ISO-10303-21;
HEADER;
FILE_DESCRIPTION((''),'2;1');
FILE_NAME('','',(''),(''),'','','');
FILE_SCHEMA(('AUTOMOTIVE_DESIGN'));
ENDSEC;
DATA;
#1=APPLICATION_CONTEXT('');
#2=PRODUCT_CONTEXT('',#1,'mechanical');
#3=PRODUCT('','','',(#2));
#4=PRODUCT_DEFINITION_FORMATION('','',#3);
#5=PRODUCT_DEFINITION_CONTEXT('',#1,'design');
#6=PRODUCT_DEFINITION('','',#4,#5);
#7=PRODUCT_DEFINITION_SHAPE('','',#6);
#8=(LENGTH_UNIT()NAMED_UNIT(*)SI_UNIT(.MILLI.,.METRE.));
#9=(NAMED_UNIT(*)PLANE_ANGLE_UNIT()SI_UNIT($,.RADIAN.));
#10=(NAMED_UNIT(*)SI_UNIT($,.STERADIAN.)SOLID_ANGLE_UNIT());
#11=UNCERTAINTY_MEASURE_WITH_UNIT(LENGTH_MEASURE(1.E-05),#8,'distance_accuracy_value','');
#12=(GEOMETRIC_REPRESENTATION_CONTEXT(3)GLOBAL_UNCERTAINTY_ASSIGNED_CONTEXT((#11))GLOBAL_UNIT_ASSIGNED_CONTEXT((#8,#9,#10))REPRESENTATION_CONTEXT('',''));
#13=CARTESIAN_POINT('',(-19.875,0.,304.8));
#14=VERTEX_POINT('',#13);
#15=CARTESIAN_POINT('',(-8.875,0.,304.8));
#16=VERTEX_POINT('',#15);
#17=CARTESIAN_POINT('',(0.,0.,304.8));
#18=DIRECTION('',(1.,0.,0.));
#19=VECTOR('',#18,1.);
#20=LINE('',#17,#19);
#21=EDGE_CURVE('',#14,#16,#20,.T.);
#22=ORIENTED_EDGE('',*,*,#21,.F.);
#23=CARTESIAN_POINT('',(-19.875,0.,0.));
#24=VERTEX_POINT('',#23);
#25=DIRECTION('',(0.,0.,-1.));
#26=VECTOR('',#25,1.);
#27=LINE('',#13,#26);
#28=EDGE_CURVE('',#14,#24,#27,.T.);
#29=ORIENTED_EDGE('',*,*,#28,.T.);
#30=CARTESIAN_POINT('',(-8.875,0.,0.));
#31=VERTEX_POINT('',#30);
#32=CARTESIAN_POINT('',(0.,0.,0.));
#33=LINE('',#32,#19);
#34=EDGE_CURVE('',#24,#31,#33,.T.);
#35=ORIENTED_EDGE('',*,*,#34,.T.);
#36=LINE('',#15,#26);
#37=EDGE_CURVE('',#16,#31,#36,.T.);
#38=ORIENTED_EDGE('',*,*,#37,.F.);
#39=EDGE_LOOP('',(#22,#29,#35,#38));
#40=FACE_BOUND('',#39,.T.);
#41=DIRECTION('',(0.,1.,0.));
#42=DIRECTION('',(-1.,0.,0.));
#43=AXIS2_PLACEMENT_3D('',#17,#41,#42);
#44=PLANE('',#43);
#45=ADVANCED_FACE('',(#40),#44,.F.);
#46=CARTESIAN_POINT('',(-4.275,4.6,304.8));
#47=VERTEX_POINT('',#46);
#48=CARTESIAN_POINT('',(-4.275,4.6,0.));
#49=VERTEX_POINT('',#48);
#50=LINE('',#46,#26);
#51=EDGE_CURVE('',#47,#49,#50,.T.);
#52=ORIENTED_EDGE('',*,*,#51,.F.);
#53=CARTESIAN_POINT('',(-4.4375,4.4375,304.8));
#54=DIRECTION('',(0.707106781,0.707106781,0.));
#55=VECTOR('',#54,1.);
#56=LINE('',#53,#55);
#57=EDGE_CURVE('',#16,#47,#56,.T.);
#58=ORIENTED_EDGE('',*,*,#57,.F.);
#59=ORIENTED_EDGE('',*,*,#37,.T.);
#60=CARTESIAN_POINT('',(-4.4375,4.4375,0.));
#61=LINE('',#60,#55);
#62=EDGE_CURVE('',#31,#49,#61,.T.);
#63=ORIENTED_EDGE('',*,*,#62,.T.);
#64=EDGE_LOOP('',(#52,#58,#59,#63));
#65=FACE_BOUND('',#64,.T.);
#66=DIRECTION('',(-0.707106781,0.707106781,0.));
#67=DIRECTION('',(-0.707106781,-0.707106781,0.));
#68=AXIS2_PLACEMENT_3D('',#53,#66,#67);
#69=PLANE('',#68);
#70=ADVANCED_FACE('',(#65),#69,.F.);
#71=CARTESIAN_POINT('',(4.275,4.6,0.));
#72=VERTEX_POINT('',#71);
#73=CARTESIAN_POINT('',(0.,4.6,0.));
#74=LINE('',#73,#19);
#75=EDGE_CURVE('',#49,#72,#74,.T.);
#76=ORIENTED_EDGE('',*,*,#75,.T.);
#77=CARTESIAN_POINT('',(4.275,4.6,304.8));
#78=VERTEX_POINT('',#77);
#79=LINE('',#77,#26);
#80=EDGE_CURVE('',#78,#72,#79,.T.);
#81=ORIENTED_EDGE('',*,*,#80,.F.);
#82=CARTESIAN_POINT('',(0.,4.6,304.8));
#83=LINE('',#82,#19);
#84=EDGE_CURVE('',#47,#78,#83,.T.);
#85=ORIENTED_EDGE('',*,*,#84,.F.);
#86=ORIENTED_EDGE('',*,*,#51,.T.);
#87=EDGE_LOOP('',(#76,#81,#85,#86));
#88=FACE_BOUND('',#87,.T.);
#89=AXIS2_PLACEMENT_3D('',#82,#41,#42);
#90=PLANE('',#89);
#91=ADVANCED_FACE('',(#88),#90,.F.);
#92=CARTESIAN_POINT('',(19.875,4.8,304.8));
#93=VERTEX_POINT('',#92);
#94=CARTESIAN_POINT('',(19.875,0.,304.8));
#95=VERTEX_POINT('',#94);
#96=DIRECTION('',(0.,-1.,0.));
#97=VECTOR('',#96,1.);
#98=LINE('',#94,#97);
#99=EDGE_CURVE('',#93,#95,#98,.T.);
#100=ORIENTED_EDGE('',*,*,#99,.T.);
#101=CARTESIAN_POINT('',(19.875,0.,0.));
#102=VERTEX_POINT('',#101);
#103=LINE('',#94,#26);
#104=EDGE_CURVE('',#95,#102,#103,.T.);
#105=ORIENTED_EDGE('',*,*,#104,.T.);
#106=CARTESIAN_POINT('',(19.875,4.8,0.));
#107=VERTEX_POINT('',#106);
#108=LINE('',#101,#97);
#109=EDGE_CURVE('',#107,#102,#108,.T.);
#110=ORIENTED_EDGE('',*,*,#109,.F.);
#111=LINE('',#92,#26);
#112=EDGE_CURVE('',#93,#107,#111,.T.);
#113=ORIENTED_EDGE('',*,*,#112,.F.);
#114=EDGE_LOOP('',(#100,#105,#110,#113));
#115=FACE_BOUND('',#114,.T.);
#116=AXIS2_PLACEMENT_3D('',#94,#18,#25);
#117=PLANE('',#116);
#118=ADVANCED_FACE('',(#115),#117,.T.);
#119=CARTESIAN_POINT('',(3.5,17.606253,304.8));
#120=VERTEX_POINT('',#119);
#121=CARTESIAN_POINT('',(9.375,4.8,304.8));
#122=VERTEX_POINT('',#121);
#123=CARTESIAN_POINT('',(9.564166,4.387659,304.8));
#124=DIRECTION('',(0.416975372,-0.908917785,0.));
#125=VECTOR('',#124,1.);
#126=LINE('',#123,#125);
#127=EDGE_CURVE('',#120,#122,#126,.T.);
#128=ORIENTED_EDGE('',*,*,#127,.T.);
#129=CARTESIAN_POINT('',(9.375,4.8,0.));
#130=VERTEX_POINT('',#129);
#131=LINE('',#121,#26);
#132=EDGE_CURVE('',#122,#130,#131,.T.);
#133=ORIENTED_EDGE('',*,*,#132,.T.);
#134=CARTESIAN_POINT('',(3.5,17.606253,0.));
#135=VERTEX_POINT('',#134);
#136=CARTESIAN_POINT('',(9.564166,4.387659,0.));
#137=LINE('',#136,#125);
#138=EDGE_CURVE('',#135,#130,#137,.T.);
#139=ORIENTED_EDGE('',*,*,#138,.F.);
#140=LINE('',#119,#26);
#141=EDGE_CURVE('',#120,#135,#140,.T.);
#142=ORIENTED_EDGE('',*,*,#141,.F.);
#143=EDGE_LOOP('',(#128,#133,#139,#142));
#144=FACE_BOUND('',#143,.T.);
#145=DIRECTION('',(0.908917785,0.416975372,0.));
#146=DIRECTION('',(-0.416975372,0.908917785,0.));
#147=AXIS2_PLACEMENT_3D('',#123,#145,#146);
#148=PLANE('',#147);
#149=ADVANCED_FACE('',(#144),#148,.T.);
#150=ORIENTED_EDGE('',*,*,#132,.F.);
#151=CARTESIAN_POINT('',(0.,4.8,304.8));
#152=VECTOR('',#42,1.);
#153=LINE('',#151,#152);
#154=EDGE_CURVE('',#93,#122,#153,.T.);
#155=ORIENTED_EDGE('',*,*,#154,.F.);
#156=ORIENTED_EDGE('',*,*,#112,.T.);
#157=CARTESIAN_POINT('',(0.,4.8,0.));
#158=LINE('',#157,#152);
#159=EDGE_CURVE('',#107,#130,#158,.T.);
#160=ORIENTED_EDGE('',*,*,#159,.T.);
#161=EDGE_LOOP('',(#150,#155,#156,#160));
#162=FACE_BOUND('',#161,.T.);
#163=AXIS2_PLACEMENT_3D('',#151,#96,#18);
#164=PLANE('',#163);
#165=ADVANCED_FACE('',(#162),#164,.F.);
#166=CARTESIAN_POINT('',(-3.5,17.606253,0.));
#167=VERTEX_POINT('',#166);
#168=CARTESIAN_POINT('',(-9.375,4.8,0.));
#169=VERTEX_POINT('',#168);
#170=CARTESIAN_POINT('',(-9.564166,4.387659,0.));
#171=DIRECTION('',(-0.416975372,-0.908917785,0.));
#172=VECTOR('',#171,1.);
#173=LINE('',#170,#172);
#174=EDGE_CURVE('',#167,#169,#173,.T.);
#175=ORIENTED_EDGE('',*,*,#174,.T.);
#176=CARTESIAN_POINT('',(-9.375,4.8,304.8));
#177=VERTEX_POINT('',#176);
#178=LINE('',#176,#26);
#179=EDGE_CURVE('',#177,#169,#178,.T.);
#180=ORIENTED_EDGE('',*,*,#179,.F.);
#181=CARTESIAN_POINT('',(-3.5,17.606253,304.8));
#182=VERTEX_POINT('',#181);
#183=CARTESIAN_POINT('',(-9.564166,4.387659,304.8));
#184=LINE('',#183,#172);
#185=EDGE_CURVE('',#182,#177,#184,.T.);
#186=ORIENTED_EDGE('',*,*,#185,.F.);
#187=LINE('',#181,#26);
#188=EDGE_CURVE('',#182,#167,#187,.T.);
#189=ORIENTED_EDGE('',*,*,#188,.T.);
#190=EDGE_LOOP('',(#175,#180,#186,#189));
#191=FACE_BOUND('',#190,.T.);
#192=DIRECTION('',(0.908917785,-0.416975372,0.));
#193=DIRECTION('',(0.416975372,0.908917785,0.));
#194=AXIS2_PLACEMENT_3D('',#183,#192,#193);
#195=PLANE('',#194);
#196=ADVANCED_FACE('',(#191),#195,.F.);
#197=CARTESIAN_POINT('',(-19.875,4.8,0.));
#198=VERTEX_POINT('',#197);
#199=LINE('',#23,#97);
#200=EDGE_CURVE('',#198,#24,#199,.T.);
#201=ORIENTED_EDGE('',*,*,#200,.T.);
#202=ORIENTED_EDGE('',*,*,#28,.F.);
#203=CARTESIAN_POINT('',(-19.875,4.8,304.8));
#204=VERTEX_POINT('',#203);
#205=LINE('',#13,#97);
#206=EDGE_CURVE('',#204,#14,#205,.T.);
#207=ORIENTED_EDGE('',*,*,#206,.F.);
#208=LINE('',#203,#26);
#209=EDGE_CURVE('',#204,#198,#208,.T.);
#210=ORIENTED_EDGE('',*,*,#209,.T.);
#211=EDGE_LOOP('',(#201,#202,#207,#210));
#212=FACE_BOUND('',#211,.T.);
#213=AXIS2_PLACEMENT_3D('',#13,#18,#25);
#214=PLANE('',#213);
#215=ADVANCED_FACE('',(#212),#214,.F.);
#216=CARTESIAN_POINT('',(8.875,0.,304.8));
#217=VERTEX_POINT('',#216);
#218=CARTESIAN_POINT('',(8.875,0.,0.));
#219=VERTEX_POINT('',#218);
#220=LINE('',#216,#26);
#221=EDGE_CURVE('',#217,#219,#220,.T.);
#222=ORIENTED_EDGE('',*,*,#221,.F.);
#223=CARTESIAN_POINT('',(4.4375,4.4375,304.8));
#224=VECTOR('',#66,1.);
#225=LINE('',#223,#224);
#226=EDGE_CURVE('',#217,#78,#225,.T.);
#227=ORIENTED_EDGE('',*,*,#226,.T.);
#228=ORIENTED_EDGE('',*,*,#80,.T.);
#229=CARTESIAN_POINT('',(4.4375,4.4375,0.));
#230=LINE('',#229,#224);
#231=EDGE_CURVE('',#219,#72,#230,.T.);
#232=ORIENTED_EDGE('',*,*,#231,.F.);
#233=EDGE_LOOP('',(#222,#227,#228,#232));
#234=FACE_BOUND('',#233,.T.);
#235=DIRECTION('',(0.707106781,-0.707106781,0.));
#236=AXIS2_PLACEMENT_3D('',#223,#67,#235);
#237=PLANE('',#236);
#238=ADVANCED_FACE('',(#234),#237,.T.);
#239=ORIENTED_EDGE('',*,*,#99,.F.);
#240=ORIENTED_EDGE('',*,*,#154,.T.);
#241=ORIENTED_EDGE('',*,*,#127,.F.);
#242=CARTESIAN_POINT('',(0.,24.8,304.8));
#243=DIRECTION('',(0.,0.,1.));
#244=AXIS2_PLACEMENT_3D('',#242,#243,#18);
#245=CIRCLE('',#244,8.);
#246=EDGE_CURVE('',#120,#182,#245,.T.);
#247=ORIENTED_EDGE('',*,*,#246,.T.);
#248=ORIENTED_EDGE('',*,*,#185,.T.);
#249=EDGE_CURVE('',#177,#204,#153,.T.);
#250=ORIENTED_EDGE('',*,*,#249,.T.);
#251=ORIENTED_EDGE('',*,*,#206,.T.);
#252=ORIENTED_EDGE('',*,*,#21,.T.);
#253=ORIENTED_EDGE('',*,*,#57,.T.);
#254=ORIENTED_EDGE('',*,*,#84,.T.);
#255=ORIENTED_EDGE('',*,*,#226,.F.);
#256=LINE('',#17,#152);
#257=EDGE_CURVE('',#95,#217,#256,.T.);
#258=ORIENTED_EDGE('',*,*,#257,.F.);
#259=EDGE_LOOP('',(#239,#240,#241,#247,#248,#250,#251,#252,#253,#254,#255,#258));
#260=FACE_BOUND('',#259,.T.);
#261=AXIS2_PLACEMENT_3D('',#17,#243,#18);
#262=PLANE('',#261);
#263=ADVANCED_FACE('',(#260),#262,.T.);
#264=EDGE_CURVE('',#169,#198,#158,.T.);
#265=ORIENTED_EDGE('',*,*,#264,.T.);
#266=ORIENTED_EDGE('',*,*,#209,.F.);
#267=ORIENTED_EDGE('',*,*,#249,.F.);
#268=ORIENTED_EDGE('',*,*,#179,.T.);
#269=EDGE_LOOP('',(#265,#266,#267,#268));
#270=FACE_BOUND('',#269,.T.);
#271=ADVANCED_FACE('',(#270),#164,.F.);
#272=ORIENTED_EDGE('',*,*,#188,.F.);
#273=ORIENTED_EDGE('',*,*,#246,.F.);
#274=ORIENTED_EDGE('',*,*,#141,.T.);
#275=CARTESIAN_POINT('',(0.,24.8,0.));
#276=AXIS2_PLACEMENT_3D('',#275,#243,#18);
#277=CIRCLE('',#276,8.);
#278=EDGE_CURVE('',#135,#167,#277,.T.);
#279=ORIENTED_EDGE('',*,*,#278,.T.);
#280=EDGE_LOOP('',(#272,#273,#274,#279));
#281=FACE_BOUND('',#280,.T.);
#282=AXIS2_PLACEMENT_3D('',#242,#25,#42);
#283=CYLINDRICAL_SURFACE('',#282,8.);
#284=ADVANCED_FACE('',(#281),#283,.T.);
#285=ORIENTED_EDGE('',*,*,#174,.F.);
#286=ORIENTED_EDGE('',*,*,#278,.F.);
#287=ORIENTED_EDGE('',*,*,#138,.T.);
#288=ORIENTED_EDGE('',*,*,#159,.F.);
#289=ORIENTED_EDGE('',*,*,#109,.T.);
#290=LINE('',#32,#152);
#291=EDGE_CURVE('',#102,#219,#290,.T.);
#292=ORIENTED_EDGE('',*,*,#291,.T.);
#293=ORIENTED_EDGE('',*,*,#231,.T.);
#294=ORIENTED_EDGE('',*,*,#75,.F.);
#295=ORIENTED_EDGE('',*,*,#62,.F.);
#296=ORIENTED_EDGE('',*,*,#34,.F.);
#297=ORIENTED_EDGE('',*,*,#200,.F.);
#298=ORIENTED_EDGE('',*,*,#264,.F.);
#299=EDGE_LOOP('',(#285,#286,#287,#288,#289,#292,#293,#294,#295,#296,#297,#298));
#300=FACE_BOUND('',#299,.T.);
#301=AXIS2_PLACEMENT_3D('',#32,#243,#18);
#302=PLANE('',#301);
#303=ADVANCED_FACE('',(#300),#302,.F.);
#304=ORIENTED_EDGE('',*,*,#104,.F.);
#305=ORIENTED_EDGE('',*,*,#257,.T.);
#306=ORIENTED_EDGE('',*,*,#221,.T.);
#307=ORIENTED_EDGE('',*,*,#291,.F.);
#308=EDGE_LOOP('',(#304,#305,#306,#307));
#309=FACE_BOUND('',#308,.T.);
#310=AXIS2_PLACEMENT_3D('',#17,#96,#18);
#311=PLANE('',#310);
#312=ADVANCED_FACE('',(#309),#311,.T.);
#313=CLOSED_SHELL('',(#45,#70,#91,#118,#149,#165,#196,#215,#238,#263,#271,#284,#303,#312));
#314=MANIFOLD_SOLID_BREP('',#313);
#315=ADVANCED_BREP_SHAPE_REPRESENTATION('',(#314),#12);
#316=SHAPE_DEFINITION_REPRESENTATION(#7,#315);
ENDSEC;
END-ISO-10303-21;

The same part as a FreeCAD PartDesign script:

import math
import FreeCAD as App
import Part
import Sketcher
from FreeCAD import Vector

doc = App.newDocument("Part")
body = doc.addObject("PartDesign::Body", "Body")

# Sketch on XY plane
sketch1 = doc.addObject("Sketcher::SketchObject", "Sketch")
body.addObject(sketch1)
sketch1.AttachmentSupport = (doc.XY_Plane, [""])
sketch1.MapMode = "FlatFace"
sketch1.addGeometry([
    Part.LineSegment(Vector(9.4, 4.8, 0), Vector(3.5, 17.6, 0)),  # 0
    Part.ArcOfCircle(Part.Circle(Vector(0, 24.8, 0), Vector(0, 0, 1), 8), math.radians(-64), math.radians(244)),  # 1
    Part.LineSegment(Vector(-3.5, 17.6, 0), Vector(-9.4, 4.8, 0)),  # 2
    Part.LineSegment(Vector(-9.4, 4.8, 0), Vector(-19.9, 4.8, 0)),  # 3
    Part.LineSegment(Vector(-19.9, 4.8, 0), Vector(-19.9, 0, 0)),  # 4
    Part.LineSegment(Vector(-19.9, 0, 0), Vector(-8.9, 0, 0)),  # 5
    Part.LineSegment(Vector(-8.9, 0, 0), Vector(-4.3, 4.6, 0)),  # 6
    Part.LineSegment(Vector(-4.3, 4.6, 0), Vector(4.3, 4.6, 0)),  # 7
    Part.LineSegment(Vector(4.3, 4.6, 0), Vector(8.9, 0, 0)),  # 8
    Part.LineSegment(Vector(8.9, 0, 0), Vector(19.9, 0, 0)),  # 9
    Part.LineSegment(Vector(19.9, 0, 0), Vector(19.9, 4.8, 0)),  # 10
    Part.LineSegment(Vector(19.9, 4.8, 0), Vector(9.4, 4.8, 0)),  # 11
], False)
sketch1.addConstraint([
    Sketcher.Constraint("Coincident", 0, 2, 1, 1),
    Sketcher.Constraint("Coincident", 1, 2, 2, 1),
    Sketcher.Constraint("Coincident", 2, 2, 3, 1),
    Sketcher.Constraint("Coincident", 3, 2, 4, 1),
    Sketcher.Constraint("Coincident", 4, 2, 5, 1),
    Sketcher.Constraint("Coincident", 5, 2, 6, 1),
    Sketcher.Constraint("Coincident", 6, 2, 7, 1),
    Sketcher.Constraint("Coincident", 7, 2, 8, 1),
    Sketcher.Constraint("Coincident", 8, 2, 9, 1),
    Sketcher.Constraint("Coincident", 9, 2, 10, 1),
    Sketcher.Constraint("Coincident", 10, 2, 11, 1),
    Sketcher.Constraint("Coincident", 11, 2, 0, 1),
    Sketcher.Constraint("Horizontal", 3),
    Sketcher.Constraint("Vertical", 4),
    Sketcher.Constraint("Horizontal", 5),
    Sketcher.Constraint("Horizontal", 7),
    Sketcher.Constraint("Horizontal", 9),
    Sketcher.Constraint("Vertical", 10),
    Sketcher.Constraint("Horizontal", 11),
    Sketcher.Constraint("Symmetric", 5, 2, 8, 2, -1, 1),
    Sketcher.Constraint("Symmetric", 0, 2, 1, 2, -2),
    Sketcher.Constraint("Symmetric", 4, 2, 9, 2, -2),
    Sketcher.Constraint("Symmetric", 2, 2, 11, 2, -2),
    Sketcher.Constraint("Perpendicular", 6, 8),
    Sketcher.Constraint("Equal", 6, 8),
    Sketcher.Constraint("Radius", 1, 8.0),
    Sketcher.Constraint("DistanceX", 5, 1, 5, 2, 11.0),
    Sketcher.Constraint("DistanceX", 3, 2, 3, 1, 10.5),
    Sketcher.Constraint("DistanceY", 4, 2, 4, 1, 4.8),
    Sketcher.Constraint("DistanceX", 1, 2, 0, 2, 7.0),
    Sketcher.Constraint("DistanceY", 2, 2, 1, 3, 20.0),
    Sketcher.Constraint("DistanceX", 7, 1, 7, 2, 8.55),
    Sketcher.Constraint("DistanceY", -1, 1, 6, 2, 4.6),
])
pad1 = doc.addObject("PartDesign::Pad", "Pad")
body.addObject(pad1)
pad1.Profile = sketch1
pad1.Length = 304.8

doc.recompute()
